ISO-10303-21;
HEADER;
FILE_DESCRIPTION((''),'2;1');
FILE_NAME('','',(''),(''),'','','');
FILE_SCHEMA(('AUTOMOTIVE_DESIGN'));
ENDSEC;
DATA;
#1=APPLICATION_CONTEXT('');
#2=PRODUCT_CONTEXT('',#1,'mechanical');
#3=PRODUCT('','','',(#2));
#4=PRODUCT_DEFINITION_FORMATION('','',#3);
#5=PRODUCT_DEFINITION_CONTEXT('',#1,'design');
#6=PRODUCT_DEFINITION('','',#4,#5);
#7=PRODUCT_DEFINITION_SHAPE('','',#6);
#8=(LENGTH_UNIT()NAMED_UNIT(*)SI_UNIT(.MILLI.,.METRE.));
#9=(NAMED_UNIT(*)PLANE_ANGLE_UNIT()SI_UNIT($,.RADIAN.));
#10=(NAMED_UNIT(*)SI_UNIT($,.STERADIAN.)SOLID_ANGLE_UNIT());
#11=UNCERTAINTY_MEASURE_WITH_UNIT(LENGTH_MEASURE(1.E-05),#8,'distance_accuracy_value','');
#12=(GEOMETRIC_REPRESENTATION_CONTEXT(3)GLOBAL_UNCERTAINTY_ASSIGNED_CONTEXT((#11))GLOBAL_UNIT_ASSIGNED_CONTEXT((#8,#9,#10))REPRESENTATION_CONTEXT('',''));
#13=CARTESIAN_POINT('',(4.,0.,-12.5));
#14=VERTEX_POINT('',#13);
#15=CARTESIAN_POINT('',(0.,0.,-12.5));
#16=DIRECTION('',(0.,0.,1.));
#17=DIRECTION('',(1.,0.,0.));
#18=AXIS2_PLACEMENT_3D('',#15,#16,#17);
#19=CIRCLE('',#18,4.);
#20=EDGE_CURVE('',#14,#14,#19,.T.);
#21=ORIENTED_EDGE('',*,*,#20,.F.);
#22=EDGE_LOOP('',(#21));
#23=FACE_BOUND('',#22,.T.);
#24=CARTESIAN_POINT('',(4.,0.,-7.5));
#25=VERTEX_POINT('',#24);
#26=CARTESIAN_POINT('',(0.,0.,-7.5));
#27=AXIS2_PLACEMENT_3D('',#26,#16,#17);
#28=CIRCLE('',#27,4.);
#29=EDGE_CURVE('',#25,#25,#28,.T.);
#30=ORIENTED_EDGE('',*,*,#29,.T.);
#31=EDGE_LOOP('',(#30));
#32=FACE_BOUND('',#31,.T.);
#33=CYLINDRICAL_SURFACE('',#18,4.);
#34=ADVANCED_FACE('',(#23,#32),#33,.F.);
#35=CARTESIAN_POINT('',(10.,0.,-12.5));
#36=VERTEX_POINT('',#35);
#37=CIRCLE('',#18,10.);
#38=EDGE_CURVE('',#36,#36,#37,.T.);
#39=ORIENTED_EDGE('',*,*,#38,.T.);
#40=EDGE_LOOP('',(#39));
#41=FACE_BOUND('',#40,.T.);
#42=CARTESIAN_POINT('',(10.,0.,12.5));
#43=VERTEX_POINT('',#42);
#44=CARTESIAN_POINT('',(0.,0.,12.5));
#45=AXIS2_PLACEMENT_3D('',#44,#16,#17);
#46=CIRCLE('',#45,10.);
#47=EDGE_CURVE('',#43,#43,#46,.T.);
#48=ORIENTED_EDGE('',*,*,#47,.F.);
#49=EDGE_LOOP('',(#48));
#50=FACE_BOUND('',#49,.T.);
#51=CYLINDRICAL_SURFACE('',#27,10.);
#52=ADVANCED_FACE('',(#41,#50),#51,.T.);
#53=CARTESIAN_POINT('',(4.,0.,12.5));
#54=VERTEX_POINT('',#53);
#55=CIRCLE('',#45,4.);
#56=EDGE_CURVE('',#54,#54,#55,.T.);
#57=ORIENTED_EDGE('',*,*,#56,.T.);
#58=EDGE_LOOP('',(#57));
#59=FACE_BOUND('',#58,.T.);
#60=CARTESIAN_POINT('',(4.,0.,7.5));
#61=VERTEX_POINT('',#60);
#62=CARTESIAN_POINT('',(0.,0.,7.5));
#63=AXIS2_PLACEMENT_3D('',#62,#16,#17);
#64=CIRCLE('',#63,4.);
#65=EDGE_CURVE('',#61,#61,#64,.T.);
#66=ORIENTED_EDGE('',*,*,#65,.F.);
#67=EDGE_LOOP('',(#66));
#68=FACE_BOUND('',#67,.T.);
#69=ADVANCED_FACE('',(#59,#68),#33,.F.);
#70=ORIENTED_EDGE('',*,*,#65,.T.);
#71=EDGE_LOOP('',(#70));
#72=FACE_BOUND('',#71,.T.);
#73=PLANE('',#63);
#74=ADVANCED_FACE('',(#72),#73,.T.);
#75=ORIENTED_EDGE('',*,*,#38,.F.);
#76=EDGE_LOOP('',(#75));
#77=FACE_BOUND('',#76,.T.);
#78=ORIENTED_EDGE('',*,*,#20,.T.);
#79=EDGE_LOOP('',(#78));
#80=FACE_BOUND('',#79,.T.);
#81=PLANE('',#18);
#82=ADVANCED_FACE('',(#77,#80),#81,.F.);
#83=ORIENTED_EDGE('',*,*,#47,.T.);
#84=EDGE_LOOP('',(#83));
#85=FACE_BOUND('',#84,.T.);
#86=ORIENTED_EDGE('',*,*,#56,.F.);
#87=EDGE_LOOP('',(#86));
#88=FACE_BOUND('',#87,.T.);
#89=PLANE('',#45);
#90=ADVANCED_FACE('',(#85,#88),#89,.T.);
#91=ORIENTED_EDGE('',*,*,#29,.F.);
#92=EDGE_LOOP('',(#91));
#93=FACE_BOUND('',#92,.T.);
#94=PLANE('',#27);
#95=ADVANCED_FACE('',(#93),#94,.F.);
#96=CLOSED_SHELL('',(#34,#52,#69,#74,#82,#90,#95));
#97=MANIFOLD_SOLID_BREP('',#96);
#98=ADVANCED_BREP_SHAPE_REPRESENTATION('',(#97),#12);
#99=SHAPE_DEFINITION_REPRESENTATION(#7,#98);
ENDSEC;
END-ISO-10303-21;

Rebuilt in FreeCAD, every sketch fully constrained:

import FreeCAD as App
import Part
import Sketcher

doc = App.newDocument("Part")
body = doc.addObject("PartDesign::Body", "Body")

# Sketch on XY plane
sketch1 = body.newObject("Sketcher::SketchObject", "Sketch")
sketch1.AttachmentSupport = (doc.getObject("XY_Plane"), [""])
sketch1.MapMode = "FlatFace"
sketch1.addGeometry(Part.Circle(App.Vector(0, 0, 0), App.Vector(0, 0, 1), 10), False)
sketch1.addConstraint(Sketcher.Constraint("Coincident", 0, 3, -1, 1))
sketch1.addConstraint(Sketcher.Constraint("Diameter", 0, 20.0))
pad1 = body.newObject("PartDesign::Pad", "Pad")
pad1.Profile = sketch1
pad1.Type = "TwoLengths"
pad1.Length = 7.5
pad1.Length2 = 7.5

# Sketch on XY plane
sketch2 = body.newObject("Sketcher::SketchObject", "Sketch001")
sketch2.AttachmentSupport = (doc.getObject("XY_Plane"), [""])
sketch2.MapMode = "FlatFace"
sketch2.addGeometry(Part.Circle(App.Vector(0, 0, 0), App.Vector(0, 0, 1), 10), False)
sketch2.addGeometry(Part.Circle(App.Vector(0, 0, 0), App.Vector(0, 0, 1), 4), False)
sketch2.addConstraint(Sketcher.Constraint("Coincident", 0, 3, -1, 1))
sketch2.addConstraint(Sketcher.Constraint("Coincident", 1, 3, -1, 1))
sketch2.addConstraint(Sketcher.Constraint("Diameter", 0, 20.0))
sketch2.addConstraint(Sketcher.Constraint("Diameter", 1, 8.0))
pad2 = body.newObject("PartDesign::Pad", "Pad001")
pad2.Profile = sketch2
pad2.Type = "TwoLengths"
pad2.Length = 12.5
pad2.Length2 = 12.5

doc.recompute()
